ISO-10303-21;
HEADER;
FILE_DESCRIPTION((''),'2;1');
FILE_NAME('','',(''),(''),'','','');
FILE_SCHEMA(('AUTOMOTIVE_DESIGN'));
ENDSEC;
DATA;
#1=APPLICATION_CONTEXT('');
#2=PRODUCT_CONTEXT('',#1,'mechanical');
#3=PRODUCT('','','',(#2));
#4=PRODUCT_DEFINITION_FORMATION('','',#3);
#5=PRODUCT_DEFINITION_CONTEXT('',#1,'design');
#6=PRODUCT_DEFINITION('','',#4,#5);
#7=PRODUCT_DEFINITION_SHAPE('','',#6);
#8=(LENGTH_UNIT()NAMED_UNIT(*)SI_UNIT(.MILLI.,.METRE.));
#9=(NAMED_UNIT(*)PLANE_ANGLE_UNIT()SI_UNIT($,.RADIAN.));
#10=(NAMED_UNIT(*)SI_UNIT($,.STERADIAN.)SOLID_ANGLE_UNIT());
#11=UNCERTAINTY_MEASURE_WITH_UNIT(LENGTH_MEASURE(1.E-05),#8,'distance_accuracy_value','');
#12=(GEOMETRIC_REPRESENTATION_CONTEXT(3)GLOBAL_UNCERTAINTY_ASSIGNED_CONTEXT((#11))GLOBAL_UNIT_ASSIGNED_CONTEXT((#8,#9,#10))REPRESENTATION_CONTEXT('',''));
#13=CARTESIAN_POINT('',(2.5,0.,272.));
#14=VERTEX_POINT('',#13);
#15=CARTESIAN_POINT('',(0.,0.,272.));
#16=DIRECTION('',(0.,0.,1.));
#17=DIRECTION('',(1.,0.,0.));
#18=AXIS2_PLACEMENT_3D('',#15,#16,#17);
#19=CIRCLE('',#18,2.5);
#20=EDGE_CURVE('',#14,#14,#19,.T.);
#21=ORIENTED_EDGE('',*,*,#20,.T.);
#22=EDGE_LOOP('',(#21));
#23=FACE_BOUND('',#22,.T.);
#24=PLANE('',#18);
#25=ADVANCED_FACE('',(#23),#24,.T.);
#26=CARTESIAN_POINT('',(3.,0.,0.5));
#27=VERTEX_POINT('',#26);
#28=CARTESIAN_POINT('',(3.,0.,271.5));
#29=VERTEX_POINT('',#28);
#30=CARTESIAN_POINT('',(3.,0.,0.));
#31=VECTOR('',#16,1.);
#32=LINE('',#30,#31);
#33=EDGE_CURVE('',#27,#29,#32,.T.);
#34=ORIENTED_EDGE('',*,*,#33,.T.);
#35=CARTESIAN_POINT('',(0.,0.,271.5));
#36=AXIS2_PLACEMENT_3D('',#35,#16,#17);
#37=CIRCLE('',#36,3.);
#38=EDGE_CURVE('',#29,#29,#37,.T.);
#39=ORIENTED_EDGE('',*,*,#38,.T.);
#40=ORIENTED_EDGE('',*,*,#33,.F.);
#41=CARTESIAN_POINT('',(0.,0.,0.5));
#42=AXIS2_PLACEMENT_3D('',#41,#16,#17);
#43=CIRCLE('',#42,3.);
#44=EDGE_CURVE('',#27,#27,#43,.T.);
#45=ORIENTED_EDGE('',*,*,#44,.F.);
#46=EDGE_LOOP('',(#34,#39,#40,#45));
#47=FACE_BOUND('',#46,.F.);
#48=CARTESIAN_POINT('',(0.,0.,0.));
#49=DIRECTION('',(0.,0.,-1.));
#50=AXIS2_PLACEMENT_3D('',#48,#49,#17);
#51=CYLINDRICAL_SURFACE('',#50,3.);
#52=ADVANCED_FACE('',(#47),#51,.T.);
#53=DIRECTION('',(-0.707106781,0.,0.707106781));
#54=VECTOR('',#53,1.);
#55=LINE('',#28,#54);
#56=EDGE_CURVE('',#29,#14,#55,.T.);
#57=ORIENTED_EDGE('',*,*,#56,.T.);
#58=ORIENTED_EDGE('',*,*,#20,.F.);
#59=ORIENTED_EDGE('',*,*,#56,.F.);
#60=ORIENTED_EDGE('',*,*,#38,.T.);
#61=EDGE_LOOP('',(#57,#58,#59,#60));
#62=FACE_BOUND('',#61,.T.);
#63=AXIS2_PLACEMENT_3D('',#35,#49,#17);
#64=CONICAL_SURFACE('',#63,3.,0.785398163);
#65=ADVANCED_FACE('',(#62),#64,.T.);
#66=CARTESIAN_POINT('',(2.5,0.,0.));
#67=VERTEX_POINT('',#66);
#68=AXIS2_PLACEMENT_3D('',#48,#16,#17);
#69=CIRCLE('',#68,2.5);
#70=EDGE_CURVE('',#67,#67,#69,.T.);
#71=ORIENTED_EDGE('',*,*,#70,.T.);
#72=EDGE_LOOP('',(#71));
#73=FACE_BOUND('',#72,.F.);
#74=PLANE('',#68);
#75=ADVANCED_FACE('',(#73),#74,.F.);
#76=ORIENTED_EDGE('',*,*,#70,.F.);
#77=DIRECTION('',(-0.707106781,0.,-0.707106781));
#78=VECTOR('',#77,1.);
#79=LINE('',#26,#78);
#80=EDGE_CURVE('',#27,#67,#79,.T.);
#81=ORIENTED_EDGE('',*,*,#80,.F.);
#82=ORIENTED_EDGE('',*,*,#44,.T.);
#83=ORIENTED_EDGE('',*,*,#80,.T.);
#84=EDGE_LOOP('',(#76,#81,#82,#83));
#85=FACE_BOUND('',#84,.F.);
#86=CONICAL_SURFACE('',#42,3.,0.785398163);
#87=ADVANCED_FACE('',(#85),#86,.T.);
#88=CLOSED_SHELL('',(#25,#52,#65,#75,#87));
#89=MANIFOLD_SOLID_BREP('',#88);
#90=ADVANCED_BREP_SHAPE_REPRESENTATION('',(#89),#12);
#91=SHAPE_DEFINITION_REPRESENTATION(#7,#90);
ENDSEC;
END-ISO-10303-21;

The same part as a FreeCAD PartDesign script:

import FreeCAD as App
import Part
import Sketcher


def edges_at(feature, points):
    """Names of the edges that pass closest to the given points."""
    edges = feature.Shape.Edges
    near = lambda p: min(range(len(edges)), key=lambda i: edges[i].distToShape(Part.Vertex(*p))[0])
    return sorted({f"Edge{near(p) + 1}" for p in points})

doc = App.newDocument("Part")
body = doc.addObject("PartDesign::Body", "Body")

sketch1 = body.newObject("Sketcher::SketchObject", "Sketch")
sketch1.AttachmentSupport = (doc.getObject("XY_Plane"), [""])
sketch1.MapMode = "FlatFace"
sketch1.addGeometry(Part.Circle(App.Vector(0, 0, 0), App.Vector(0, 0, 1), 3), False)
sketch1.addConstraint([
    Sketcher.Constraint("Coincident", 0, 3, -1, 1),
    Sketcher.Constraint("Diameter", 0, 6.0),
])
pad1 = body.newObject("PartDesign::Pad", "Pad")
pad1.Profile = sketch1
pad1.Length = 272
doc.recompute()

chamfer = body.newObject("PartDesign::Chamfer", "Chamfer")
chamfer.Base = (pad1, edges_at(pad1, [(-3, 0, 0), (-3, 0, 272)]))
chamfer.Size = 0.5

doc.recompute()
